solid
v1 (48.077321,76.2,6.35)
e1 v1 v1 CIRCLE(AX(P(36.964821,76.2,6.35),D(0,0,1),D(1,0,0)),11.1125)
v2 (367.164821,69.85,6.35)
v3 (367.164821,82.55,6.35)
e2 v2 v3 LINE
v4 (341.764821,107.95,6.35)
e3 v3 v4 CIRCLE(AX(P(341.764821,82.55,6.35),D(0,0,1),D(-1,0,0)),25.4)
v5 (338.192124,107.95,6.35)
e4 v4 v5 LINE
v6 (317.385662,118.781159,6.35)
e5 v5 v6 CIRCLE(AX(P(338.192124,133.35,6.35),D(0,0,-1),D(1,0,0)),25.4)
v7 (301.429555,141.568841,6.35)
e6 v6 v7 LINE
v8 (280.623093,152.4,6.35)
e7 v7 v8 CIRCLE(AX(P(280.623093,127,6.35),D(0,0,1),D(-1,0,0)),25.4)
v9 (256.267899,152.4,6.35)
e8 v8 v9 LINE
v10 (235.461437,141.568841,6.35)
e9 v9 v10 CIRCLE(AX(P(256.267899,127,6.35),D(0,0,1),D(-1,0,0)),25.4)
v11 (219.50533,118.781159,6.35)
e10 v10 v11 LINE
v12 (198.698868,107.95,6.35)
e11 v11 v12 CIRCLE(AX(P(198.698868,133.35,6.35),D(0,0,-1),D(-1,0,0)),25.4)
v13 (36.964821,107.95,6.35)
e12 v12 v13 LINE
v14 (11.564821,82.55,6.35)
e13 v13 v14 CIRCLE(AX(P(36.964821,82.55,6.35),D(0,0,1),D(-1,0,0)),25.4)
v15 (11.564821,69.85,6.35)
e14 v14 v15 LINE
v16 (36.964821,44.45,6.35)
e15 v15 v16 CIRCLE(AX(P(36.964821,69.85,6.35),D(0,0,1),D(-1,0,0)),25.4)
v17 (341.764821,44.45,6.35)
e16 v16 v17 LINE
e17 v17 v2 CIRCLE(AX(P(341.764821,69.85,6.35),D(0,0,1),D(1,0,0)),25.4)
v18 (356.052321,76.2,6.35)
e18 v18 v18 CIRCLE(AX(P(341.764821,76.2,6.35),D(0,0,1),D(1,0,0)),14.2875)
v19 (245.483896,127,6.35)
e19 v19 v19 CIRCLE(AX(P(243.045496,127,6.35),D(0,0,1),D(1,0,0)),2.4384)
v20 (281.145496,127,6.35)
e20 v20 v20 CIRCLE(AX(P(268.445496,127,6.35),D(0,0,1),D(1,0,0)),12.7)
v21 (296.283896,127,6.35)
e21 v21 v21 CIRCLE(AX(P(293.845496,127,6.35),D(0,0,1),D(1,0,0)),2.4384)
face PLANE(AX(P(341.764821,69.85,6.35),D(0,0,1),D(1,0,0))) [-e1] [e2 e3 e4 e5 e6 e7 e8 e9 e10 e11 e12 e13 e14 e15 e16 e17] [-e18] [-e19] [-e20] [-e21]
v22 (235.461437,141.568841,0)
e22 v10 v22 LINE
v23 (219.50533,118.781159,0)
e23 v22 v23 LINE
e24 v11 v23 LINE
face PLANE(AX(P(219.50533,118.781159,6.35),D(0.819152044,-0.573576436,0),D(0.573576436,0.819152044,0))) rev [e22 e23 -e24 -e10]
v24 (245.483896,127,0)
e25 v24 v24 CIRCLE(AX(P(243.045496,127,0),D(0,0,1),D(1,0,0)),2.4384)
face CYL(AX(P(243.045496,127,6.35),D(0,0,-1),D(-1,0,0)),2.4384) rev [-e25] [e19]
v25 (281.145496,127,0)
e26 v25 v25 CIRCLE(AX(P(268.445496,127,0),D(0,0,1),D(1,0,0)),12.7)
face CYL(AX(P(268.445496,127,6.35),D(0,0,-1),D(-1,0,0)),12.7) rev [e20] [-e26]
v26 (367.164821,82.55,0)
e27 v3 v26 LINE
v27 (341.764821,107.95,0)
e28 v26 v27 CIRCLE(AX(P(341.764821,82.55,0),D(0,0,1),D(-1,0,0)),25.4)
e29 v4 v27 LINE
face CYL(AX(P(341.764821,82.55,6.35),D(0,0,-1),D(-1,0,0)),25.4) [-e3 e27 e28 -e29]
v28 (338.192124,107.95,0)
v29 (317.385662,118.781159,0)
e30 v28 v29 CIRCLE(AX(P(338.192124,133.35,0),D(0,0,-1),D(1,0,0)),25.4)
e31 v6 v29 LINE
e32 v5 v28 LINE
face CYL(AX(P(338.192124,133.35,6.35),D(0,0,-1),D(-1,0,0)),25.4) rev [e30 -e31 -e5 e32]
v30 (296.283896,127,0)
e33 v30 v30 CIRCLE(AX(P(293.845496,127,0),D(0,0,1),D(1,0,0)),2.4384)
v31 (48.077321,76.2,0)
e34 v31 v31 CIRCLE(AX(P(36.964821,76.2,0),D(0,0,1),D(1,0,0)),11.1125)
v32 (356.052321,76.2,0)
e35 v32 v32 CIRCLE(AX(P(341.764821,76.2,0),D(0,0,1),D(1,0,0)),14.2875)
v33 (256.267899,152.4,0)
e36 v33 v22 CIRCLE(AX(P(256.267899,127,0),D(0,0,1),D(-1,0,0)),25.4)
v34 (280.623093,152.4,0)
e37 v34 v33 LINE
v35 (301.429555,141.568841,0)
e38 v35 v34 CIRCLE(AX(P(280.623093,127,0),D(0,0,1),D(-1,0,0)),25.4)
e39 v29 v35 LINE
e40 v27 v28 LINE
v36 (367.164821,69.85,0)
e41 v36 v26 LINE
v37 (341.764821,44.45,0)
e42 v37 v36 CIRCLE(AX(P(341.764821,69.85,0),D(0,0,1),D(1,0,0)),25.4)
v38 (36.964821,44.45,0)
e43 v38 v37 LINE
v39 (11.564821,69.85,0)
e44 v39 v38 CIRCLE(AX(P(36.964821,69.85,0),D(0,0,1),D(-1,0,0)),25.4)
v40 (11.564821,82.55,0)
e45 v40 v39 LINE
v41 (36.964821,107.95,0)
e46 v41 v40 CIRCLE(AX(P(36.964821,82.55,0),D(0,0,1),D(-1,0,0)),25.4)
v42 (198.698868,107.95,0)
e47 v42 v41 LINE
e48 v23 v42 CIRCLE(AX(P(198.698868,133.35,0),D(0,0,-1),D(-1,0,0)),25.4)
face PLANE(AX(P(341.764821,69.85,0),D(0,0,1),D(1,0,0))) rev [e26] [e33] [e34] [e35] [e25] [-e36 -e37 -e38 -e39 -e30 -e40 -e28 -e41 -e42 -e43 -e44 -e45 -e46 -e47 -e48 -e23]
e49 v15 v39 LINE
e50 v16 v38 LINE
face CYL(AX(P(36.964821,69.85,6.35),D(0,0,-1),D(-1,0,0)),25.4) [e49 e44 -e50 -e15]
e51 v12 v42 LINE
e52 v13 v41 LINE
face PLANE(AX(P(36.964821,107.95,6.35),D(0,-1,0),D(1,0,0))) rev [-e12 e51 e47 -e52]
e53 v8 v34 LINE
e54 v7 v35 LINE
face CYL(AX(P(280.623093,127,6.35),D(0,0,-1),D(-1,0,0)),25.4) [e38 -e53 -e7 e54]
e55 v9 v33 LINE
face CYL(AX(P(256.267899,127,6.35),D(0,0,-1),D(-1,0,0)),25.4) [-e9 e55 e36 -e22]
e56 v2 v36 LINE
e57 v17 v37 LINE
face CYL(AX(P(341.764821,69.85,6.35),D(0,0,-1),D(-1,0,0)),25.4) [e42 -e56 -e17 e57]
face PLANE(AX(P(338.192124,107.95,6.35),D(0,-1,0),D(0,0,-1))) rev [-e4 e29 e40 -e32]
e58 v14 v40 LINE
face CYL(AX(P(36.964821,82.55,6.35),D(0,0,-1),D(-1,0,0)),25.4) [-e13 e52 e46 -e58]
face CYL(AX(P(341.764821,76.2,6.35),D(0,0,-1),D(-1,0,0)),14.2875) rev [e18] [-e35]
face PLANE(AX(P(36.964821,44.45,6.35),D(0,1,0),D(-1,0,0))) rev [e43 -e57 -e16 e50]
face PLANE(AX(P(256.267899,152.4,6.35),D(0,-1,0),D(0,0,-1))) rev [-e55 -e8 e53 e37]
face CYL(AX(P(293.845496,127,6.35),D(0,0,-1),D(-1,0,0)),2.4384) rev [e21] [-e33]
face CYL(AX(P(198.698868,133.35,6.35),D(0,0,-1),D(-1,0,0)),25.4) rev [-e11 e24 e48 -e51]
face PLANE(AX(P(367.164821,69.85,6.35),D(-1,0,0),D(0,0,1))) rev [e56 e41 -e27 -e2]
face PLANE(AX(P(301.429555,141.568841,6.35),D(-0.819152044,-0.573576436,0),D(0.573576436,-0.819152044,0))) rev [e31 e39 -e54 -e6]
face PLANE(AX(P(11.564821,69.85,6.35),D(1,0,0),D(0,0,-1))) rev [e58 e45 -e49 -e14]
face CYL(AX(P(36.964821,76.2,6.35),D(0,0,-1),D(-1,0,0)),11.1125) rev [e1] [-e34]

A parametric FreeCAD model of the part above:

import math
import FreeCAD as App
import Part
import Sketcher
from FreeCAD import Vector
Q = App.Units.Quantity

doc = App.newDocument("Part")
body = doc.addObject("PartDesign::Body", "Body")

# Sketch on XY plane
sketch1 = body.newObject("Sketcher::SketchObject", "Sketch")
sketch1.AttachmentSupport = (doc.getObject("XY_Plane"), [""])
sketch1.MapMode = "FlatFace"
sketch1.addGeometry([
    Part.LineSegment(Vector(37, 44.5, 0), Vector(341.8, 44.5, 0)),  # 0
    Part.ArcOfCircle(Part.Circle(Vector(341.8, 69.8, 0), Vector(0, 0, 1), 25.4), math.radians(-90), math.radians(0)),  # 1
    Part.LineSegment(Vector(367.2, 69.8, 0), Vector(367.2, 82.5, 0)),  # 2
    Part.ArcOfCircle(Part.Circle(Vector(341.8, 82.5, 0), Vector(0, 0, 1), 25.4), math.radians(0), math.radians(90)),  # 3
    Part.LineSegment(Vector(341.8, 108, 0), Vector(338.2, 108, 0)),  # 4
    Part.ArcOfCircle(Part.Circle(Vector(338.2, 133.3, 0), Vector(0, 0, 1), 25.4), math.radians(-145), math.radians(-90)),  # 5
    Part.LineSegment(Vector(317.4, 118.8, 0), Vector(301.4, 141.6, 0)),  # 6
    Part.ArcOfCircle(Part.Circle(Vector(280.6, 127, 0), Vector(0, 0, 1), 25.4), math.radians(35), math.radians(90)),  # 7
    Part.LineSegment(Vector(280.6, 152.4, 0), Vector(256.3, 152.4, 0)),  # 8
    Part.ArcOfCircle(Part.Circle(Vector(256.3, 127, 0), Vector(0, 0, 1), 25.4), math.radians(90), math.radians(145)),  # 9
    Part.LineSegment(Vector(235.5, 141.6, 0), Vector(219.5, 118.8, 0)),  # 10
    Part.ArcOfCircle(Part.Circle(Vector(198.7, 133.3, 0), Vector(0, 0, 1), 25.4), math.radians(-90), math.radians(-35)),  # 11
    Part.LineSegment(Vector(198.7, 108, 0), Vector(37, 108, 0)),  # 12
    Part.ArcOfCircle(Part.Circle(Vector(37, 82.5, 0), Vector(0, 0, 1), 25.4), math.radians(90), math.radians(180)),  # 13
    Part.LineSegment(Vector(11.6, 82.5, 0), Vector(11.6, 69.8, 0)),  # 14
    Part.ArcOfCircle(Part.Circle(Vector(37, 69.8, 0), Vector(0, 0, 1), 25.4), math.radians(180), math.radians(270)),  # 15
    Part.Circle(Vector(37, 76.2, 0), Vector(0, 0, 1), 11.1),  # 16
    Part.Circle(Vector(341.8, 76.2, 0), Vector(0, 0, 1), 14.3),  # 17
    Part.Circle(Vector(243, 127, 0), Vector(0, 0, 1), 2.4),  # 18
    Part.Circle(Vector(268.4, 127, 0), Vector(0, 0, 1), 12.7),  # 19
    Part.Circle(Vector(293.8, 127, 0), Vector(0, 0, 1), 2.4),  # 20
], False)
sketch1.addConstraint([
    Sketcher.Constraint("Tangent", 0, 2, 1, 1),
    Sketcher.Constraint("Tangent", 1, 2, 2, 1),
    Sketcher.Constraint("Tangent", 2, 2, 3, 1),
    Sketcher.Constraint("Tangent", 3, 2, 4, 1),
    Sketcher.Constraint("Tangent", 4, 2, 5, 2),
    Sketcher.Constraint("Tangent", 5, 1, 6, 1),
    Sketcher.Constraint("Tangent", 6, 2, 7, 1),
    Sketcher.Constraint("Tangent", 7, 2, 8, 1),
    Sketcher.Constraint("Tangent", 8, 2, 9, 1),
    Sketcher.Constraint("Tangent", 9, 2, 10, 1),
    Sketcher.Constraint("Tangent", 10, 2, 11, 2),
    Sketcher.Constraint("Tangent", 11, 1, 12, 1),
    Sketcher.Constraint("Tangent", 12, 2, 13, 1),
    Sketcher.Constraint("Tangent", 13, 2, 14, 1),
    Sketcher.Constraint("Tangent", 14, 2, 15, 1),
    Sketcher.Constraint("Tangent", 15, 2, 0, 1),
    Sketcher.Constraint("Horizontal", 0),
    Sketcher.Constraint("Vertical", 2),
    Sketcher.Constraint("Horizontal", 4),
    Sketcher.Constraint("Horizontal", 8),
    Sketcher.Constraint("Horizontal", 12),
    Sketcher.Constraint("Vertical", 14),
    Sketcher.Constraint("Equal", 1, 3),
    Sketcher.Constraint("Equal", 3, 5),
    Sketcher.Constraint("Equal", 5, 7),
    Sketcher.Constraint("Equal", 7, 9),
    Sketcher.Constraint("Equal", 9, 11),
    Sketcher.Constraint("Equal", 11, 13),
    Sketcher.Constraint("Equal", 13, 15),
    Sketcher.Constraint("Equal", 18, 20),
    Sketcher.Constraint("Horizontal", 5, 3, 11, 3),
    Sketcher.Constraint("Horizontal", 16, 3, 17, 3),
    Sketcher.Constraint("Horizontal", 9, 3, 18, 3),
    Sketcher.Constraint("Horizontal", 18, 3, 19, 3),
    Sketcher.Constraint("Horizontal", 19, 3, 20, 3),
    Sketcher.Constraint("Horizontal", 6, 2, 9, 2),
    Sketcher.Constraint("Vertical", 15, 3, 16, 3),
    Sketcher.Constraint("Vertical", 3, 3, 17, 3),
    Sketcher.Constraint("Diameter", 19, Q("1 in")),
    Sketcher.Constraint("Radius", 1, Q("1 in")),
    Sketcher.Constraint("DistanceX", 0, 1, 0, 2, Q("12 in")),
    Sketcher.Constraint("Diameter", 16, Q("0.875 in")),
    Sketcher.Constraint("Diameter", 17, Q("1.125 in")),
    Sketcher.Constraint("Diameter", 18, Q("0.192 in")),
    Sketcher.Constraint("DistanceY", 2, 1, 2, 2, Q("0.5 in")),
    Sketcher.Constraint("DistanceY", -1, 1, 7, 3, Q("5 in")),
    Sketcher.Constraint("DistanceY", -1, 1, 16, 3, Q("3 in")),
    Sketcher.Constraint("Angle", 6, Q("125 deg")),
    Sketcher.Constraint("DistanceX", 18, 3, 19, 3, Q("1 in")),
    Sketcher.Constraint("DistanceX", 19, 3, 20, 3, Q("1 in")),
    Sketcher.Constraint("DistanceY", -1, 1, 1, 3, Q("2.75 in")),
    Sketcher.Constraint("DistanceX", -1, 1, 9, 3, 256.267899),
    Sketcher.Constraint("DistanceX", 4, 2, 4, 1, 3.572697),
    Sketcher.Constraint("DistanceX", 8, 2, 8, 1, 24.355194),
    Sketcher.Constraint("DistanceX", 11, 3, 18, 3, 44.346628),
])
pad1 = body.newObject("PartDesign::Pad", "Pad")
pad1.Profile = sketch1
pad1.Length = Q("0.25 in")

doc.recompute()
